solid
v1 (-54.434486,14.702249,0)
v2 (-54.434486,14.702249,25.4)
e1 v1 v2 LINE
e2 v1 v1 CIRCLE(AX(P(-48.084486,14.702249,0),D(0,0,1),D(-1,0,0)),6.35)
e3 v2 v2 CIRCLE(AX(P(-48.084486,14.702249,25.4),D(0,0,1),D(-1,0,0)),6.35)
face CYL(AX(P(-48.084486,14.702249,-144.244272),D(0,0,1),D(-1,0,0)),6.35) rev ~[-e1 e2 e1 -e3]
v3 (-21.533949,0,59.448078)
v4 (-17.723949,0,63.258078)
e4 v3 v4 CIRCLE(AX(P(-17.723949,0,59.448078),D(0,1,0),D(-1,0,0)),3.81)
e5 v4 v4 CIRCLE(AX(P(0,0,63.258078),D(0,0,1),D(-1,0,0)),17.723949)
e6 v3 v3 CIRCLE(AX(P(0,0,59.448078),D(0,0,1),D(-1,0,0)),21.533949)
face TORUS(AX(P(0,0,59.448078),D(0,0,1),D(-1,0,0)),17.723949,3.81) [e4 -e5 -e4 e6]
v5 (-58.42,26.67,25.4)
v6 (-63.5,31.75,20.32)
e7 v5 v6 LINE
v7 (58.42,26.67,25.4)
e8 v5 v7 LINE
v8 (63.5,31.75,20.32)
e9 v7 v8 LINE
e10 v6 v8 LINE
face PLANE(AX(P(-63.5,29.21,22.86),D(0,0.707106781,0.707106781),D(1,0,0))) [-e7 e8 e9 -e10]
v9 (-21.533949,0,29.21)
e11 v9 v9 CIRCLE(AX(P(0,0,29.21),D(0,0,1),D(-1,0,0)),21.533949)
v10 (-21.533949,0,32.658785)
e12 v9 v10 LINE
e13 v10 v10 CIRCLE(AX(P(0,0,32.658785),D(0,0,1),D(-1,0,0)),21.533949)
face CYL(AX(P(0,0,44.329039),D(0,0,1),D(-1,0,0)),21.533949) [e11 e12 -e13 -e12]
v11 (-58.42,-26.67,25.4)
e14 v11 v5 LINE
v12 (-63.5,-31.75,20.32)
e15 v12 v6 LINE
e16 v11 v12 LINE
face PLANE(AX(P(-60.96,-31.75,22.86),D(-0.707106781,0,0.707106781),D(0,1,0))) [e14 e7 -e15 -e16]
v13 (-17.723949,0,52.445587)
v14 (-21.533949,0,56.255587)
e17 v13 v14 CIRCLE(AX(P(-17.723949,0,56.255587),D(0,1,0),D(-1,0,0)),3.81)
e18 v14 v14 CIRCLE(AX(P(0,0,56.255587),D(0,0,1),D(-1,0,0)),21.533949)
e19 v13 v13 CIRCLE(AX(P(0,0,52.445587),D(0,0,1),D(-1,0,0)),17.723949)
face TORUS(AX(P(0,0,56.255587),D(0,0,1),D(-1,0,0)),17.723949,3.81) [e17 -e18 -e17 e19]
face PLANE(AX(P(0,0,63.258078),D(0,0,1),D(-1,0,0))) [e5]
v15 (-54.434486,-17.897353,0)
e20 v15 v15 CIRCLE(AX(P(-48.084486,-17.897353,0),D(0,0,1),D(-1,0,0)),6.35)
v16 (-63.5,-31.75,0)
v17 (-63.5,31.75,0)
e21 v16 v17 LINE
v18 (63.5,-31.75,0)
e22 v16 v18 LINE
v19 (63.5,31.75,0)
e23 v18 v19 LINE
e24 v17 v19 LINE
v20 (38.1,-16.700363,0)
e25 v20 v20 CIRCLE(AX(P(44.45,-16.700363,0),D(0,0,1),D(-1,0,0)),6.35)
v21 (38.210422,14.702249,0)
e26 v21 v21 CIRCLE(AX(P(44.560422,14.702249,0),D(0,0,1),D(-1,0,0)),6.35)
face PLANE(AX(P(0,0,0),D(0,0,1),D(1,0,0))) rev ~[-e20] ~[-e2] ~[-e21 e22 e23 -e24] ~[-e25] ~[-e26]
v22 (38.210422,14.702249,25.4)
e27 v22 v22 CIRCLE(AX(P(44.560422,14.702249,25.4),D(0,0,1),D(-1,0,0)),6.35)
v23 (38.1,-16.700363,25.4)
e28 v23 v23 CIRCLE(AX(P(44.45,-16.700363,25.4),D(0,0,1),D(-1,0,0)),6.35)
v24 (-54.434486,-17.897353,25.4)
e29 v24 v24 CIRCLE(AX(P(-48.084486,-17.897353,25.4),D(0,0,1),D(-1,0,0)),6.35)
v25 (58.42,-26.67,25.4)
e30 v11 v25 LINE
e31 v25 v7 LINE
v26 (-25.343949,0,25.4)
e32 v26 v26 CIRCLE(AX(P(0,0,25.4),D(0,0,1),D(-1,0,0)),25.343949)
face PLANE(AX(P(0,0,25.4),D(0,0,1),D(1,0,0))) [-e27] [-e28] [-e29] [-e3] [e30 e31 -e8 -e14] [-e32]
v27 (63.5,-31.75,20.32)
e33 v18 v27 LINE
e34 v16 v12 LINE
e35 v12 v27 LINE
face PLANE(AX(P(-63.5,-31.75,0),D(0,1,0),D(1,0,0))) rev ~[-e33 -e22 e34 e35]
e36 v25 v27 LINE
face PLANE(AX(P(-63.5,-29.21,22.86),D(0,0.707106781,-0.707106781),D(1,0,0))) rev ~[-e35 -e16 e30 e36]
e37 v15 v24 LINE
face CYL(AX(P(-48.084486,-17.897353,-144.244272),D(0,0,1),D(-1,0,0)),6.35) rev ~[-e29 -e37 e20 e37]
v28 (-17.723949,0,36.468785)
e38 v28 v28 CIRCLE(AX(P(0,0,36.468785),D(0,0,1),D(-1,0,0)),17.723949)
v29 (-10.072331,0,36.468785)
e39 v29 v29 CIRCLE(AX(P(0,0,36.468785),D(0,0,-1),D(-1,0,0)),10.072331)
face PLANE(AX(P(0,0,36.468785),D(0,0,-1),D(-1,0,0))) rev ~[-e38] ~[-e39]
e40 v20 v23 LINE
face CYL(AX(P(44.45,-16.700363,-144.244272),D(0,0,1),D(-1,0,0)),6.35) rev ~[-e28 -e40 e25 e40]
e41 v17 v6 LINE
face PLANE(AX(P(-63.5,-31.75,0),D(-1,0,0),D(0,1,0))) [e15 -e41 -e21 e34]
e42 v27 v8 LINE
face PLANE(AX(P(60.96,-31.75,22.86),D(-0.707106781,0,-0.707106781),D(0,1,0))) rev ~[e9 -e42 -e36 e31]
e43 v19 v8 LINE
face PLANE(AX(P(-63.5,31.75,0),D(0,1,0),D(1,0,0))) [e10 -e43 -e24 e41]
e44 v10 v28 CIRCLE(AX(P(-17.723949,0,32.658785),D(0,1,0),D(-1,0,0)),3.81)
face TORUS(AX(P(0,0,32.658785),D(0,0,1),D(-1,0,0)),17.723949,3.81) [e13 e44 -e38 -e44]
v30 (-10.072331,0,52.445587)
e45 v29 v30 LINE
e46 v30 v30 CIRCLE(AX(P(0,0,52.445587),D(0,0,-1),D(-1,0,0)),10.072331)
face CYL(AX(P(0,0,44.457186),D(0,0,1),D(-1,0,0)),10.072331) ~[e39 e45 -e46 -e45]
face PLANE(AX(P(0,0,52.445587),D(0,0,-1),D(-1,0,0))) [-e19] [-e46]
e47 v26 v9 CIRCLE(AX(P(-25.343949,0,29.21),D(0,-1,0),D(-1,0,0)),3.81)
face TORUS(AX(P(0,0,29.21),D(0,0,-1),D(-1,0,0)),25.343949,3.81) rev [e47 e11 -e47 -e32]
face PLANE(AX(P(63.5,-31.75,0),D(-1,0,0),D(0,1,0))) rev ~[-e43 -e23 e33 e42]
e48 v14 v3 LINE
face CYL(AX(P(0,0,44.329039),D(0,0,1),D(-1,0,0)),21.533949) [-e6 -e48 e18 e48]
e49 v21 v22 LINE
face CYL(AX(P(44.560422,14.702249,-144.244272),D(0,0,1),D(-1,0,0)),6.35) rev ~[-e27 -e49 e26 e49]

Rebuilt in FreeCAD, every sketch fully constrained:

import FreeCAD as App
import Part
import Sketcher
from FreeCAD import Vector
Q = App.Units.Quantity


def edges_at(feature, points):
    """Names of the edges that pass closest to the given points."""
    edges = feature.Shape.Edges
    near = lambda p: min(range(len(edges)), key=lambda i: edges[i].distToShape(Part.Vertex(*p))[0])
    return sorted({f"Edge{near(p) + 1}" for p in points})


def add_polygon(sketch, points):
    """Adds a closed chain of lines whose ends are joined by coincident constraints."""
    first, n = sketch.GeometryCount, len(points)
    for a, b in zip(points, points[1:] + points[:1]):
        sketch.addGeometry(Part.LineSegment(App.Vector(*a, 0), App.Vector(*b, 0)), False)
    for i in range(n):
        sketch.addConstraint(Sketcher.Constraint("Coincident", first + i, 2, first + (i + 1) % n, 1))

doc = App.newDocument("Part")
params = doc.addObject("Spreadsheet::Sheet", "Params")
for row, (alias, value) in enumerate([
    ("sketch1_width", "5 in"),
    ("sketch1_height", "2.5 in"),
    ("pad1_length", "1 in"),
    ("sketch2_diameter", "0.5 in"),
    ("hole_diameter", "0.5 in"),
    ("revolution_angle", "360 deg"),
    ("groove_angle", "360 deg"),
    ("fillet_radius", "0.15 in"),
    ("chamfer_size", "0.2 in"),
], start=1):
    params.set(f"A{row}", alias)
    params.set(f"B{row}", "=" + value)
    params.setAlias(f"B{row}", alias)

body = doc.addObject("PartDesign::Body", "Body")

# Sketch on XY plane
sketch1 = body.newObject("Sketcher::SketchObject", "Sketch")
sketch1.AttachmentSupport = (doc.getObject("XY_Plane"), [""])
sketch1.MapMode = "FlatFace"
add_polygon(sketch1, [(-64, 32), (-64, -32), (64, -32), (64, 32)])  # lines 0-3
sketch1.addConstraint([
    Sketcher.Constraint("Vertical", 0),
    Sketcher.Constraint("Horizontal", 1),
    Sketcher.Constraint("Vertical", 2),
    Sketcher.Constraint("Horizontal", 3),
    Sketcher.Constraint("Symmetric", 0, 2, 2, 2, -1, 1),
    Sketcher.Constraint("DistanceX", 1, 1, 1, 2, Q("5 in")),
    Sketcher.Constraint("DistanceY", 0, 2, 0, 1, Q("2.5 in")),
])
sketch1.setExpression("Constraints[9]", "Params.sketch1_width")
sketch1.setExpression("Constraints[10]", "Params.sketch1_height")
pad1 = body.newObject("PartDesign::Pad", "Pad")
pad1.Profile = sketch1
pad1.setExpression("Length", "Params.pad1_length")

# Sketch on XY plane
sketch2 = body.newObject("Sketcher::SketchObject", "Sketch001")
sketch2.AttachmentSupport = (doc.getObject("XY_Plane"), [""])
sketch2.MapMode = "FlatFace"
sketch2.addGeometry([
    Part.Circle(Vector(-48, 15, 0), Vector(0, 0, 1), 6),
    Part.Circle(Vector(-48, -18, 0), Vector(0, 0, 1), 6),
    Part.Circle(Vector(44, -17, 0), Vector(0, 0, 1), 6),
    Part.Circle(Vector(45, 15, 0), Vector(0, 0, 1), 6),
], False)
sketch2.addConstraint([
    Sketcher.Constraint("Equal", 0, 1),
    Sketcher.Constraint("Equal", 1, 2),
    Sketcher.Constraint("Equal", 2, 3),
    Sketcher.Constraint("Horizontal", 0, 3, 3, 3),
    Sketcher.Constraint("Vertical", 0, 3, 1, 3),
    Sketcher.Constraint("Diameter", 0, Q("0.5 in")),
    Sketcher.Constraint("DistanceX", -1, 1, 2, 3, Q("1.75 in")),
    Sketcher.Constraint("DistanceY", -1, 1, 0, 3, 14.702249),
    Sketcher.Constraint("DistanceX", -1, 1, 3, 3, 44.560422),
    Sketcher.Constraint("DistanceY", 1, 3, 2, 3, 1.19699),
    Sketcher.Constraint("DistanceX", 0, 3, -1, 1, 48.084486),
    Sketcher.Constraint("DistanceY", 1, 3, -1, 1, 17.897353),
])
sketch2.setExpression("Constraints[5]", "Params.sketch2_diameter")
doc.recompute()
hole = body.newObject("PartDesign::Hole", "Hole")
hole.Profile = sketch2
hole.ThreadType = "None"
hole.setExpression("Diameter", "Params.hole_diameter")
hole.DepthType = "ThroughAll"
hole.Reversed = True

# Sketch on XZ plane
sketch3 = body.newObject("Sketcher::SketchObject", "Sketch002")
sketch3.AttachmentSupport = (doc.getObject("XZ_Plane"), [""])
sketch3.MapMode = "FlatFace"
add_polygon(sketch3, [(-22, 63), (-22, 25), (0, 25), (0, 63)])  # lines 0-3
sketch3.addConstraint([
    Sketcher.Constraint("Vertical", 0),
    Sketcher.Constraint("Horizontal", 1),
    Sketcher.Constraint("Vertical", 2),
    Sketcher.Constraint("Horizontal", 3),
    Sketcher.Constraint("PointOnObject", 1, 2, -2),
    Sketcher.Constraint("DistanceY", -1, 1, 0, 2, Q("1 in")),
    Sketcher.Constraint("DistanceX", 1, 1, 1, 2, 21.533949),
    Sketcher.Constraint("DistanceY", 0, 2, 0, 1, 37.858078),
])
revolution = body.newObject("PartDesign::Revolution", "Revolution")
revolution.Profile = sketch3
revolution.ReferenceAxis = (sketch3, ["V_Axis"])
revolution.setExpression("Angle", "Params.revolution_angle")

# Sketch on XZ plane
sketch4 = body.newObject("Sketcher::SketchObject", "Sketch003")
sketch4.AttachmentSupport = (doc.getObject("XZ_Plane"), [""])
sketch4.MapMode = "FlatFace"
add_polygon(sketch4, [(-25, 52), (-25, 36), (-10, 36), (-10, 52)])  # lines 0-3
sketch4.addConstraint([
    Sketcher.Constraint("Vertical", 0),
    Sketcher.Constraint("Horizontal", 1),
    Sketcher.Constraint("Vertical", 2),
    Sketcher.Constraint("Horizontal", 3),
    Sketcher.Constraint("DistanceY", 0, 2, 0, 1, 15.976802),
    Sketcher.Constraint("DistanceX", 1, 1, 1, 2, 15.282157),
    Sketcher.Constraint("DistanceX", 1, 2, -1, 1, 10.072331),
    Sketcher.Constraint("DistanceY", -1, 1, 0, 2, 36.468785),
])
groove = body.newObject("PartDesign::Groove", "Groove")
groove.Profile = sketch4
groove.ReferenceAxis = (sketch4, ["V_Axis"])
groove.setExpression("Angle", "Params.groove_angle")
doc.recompute()

fillet = body.newObject("PartDesign::Fillet", "Fillet")
fillet.Base = (groove, edges_at(groove, [
    (21.534, 0, 63.258),
    (21.534, 0, 36.469),
    (21.534, 0, 25.4),
    (21.534, 0, 52.446),
]))
fillet.setExpression("Radius", "Params.fillet_radius")
doc.recompute()

chamfer = body.newObject("PartDesign::Chamfer", "Chamfer")
chamfer.Base = (fillet, edges_at(fillet, [
    (0, 31.75, 25.4),
    (-63.5, 0, 25.4),
    (0, -31.75, 25.4),
    (63.5, 0, 25.4),
]))
chamfer.setExpression("Size", "Params.chamfer_size")

doc.recompute()
